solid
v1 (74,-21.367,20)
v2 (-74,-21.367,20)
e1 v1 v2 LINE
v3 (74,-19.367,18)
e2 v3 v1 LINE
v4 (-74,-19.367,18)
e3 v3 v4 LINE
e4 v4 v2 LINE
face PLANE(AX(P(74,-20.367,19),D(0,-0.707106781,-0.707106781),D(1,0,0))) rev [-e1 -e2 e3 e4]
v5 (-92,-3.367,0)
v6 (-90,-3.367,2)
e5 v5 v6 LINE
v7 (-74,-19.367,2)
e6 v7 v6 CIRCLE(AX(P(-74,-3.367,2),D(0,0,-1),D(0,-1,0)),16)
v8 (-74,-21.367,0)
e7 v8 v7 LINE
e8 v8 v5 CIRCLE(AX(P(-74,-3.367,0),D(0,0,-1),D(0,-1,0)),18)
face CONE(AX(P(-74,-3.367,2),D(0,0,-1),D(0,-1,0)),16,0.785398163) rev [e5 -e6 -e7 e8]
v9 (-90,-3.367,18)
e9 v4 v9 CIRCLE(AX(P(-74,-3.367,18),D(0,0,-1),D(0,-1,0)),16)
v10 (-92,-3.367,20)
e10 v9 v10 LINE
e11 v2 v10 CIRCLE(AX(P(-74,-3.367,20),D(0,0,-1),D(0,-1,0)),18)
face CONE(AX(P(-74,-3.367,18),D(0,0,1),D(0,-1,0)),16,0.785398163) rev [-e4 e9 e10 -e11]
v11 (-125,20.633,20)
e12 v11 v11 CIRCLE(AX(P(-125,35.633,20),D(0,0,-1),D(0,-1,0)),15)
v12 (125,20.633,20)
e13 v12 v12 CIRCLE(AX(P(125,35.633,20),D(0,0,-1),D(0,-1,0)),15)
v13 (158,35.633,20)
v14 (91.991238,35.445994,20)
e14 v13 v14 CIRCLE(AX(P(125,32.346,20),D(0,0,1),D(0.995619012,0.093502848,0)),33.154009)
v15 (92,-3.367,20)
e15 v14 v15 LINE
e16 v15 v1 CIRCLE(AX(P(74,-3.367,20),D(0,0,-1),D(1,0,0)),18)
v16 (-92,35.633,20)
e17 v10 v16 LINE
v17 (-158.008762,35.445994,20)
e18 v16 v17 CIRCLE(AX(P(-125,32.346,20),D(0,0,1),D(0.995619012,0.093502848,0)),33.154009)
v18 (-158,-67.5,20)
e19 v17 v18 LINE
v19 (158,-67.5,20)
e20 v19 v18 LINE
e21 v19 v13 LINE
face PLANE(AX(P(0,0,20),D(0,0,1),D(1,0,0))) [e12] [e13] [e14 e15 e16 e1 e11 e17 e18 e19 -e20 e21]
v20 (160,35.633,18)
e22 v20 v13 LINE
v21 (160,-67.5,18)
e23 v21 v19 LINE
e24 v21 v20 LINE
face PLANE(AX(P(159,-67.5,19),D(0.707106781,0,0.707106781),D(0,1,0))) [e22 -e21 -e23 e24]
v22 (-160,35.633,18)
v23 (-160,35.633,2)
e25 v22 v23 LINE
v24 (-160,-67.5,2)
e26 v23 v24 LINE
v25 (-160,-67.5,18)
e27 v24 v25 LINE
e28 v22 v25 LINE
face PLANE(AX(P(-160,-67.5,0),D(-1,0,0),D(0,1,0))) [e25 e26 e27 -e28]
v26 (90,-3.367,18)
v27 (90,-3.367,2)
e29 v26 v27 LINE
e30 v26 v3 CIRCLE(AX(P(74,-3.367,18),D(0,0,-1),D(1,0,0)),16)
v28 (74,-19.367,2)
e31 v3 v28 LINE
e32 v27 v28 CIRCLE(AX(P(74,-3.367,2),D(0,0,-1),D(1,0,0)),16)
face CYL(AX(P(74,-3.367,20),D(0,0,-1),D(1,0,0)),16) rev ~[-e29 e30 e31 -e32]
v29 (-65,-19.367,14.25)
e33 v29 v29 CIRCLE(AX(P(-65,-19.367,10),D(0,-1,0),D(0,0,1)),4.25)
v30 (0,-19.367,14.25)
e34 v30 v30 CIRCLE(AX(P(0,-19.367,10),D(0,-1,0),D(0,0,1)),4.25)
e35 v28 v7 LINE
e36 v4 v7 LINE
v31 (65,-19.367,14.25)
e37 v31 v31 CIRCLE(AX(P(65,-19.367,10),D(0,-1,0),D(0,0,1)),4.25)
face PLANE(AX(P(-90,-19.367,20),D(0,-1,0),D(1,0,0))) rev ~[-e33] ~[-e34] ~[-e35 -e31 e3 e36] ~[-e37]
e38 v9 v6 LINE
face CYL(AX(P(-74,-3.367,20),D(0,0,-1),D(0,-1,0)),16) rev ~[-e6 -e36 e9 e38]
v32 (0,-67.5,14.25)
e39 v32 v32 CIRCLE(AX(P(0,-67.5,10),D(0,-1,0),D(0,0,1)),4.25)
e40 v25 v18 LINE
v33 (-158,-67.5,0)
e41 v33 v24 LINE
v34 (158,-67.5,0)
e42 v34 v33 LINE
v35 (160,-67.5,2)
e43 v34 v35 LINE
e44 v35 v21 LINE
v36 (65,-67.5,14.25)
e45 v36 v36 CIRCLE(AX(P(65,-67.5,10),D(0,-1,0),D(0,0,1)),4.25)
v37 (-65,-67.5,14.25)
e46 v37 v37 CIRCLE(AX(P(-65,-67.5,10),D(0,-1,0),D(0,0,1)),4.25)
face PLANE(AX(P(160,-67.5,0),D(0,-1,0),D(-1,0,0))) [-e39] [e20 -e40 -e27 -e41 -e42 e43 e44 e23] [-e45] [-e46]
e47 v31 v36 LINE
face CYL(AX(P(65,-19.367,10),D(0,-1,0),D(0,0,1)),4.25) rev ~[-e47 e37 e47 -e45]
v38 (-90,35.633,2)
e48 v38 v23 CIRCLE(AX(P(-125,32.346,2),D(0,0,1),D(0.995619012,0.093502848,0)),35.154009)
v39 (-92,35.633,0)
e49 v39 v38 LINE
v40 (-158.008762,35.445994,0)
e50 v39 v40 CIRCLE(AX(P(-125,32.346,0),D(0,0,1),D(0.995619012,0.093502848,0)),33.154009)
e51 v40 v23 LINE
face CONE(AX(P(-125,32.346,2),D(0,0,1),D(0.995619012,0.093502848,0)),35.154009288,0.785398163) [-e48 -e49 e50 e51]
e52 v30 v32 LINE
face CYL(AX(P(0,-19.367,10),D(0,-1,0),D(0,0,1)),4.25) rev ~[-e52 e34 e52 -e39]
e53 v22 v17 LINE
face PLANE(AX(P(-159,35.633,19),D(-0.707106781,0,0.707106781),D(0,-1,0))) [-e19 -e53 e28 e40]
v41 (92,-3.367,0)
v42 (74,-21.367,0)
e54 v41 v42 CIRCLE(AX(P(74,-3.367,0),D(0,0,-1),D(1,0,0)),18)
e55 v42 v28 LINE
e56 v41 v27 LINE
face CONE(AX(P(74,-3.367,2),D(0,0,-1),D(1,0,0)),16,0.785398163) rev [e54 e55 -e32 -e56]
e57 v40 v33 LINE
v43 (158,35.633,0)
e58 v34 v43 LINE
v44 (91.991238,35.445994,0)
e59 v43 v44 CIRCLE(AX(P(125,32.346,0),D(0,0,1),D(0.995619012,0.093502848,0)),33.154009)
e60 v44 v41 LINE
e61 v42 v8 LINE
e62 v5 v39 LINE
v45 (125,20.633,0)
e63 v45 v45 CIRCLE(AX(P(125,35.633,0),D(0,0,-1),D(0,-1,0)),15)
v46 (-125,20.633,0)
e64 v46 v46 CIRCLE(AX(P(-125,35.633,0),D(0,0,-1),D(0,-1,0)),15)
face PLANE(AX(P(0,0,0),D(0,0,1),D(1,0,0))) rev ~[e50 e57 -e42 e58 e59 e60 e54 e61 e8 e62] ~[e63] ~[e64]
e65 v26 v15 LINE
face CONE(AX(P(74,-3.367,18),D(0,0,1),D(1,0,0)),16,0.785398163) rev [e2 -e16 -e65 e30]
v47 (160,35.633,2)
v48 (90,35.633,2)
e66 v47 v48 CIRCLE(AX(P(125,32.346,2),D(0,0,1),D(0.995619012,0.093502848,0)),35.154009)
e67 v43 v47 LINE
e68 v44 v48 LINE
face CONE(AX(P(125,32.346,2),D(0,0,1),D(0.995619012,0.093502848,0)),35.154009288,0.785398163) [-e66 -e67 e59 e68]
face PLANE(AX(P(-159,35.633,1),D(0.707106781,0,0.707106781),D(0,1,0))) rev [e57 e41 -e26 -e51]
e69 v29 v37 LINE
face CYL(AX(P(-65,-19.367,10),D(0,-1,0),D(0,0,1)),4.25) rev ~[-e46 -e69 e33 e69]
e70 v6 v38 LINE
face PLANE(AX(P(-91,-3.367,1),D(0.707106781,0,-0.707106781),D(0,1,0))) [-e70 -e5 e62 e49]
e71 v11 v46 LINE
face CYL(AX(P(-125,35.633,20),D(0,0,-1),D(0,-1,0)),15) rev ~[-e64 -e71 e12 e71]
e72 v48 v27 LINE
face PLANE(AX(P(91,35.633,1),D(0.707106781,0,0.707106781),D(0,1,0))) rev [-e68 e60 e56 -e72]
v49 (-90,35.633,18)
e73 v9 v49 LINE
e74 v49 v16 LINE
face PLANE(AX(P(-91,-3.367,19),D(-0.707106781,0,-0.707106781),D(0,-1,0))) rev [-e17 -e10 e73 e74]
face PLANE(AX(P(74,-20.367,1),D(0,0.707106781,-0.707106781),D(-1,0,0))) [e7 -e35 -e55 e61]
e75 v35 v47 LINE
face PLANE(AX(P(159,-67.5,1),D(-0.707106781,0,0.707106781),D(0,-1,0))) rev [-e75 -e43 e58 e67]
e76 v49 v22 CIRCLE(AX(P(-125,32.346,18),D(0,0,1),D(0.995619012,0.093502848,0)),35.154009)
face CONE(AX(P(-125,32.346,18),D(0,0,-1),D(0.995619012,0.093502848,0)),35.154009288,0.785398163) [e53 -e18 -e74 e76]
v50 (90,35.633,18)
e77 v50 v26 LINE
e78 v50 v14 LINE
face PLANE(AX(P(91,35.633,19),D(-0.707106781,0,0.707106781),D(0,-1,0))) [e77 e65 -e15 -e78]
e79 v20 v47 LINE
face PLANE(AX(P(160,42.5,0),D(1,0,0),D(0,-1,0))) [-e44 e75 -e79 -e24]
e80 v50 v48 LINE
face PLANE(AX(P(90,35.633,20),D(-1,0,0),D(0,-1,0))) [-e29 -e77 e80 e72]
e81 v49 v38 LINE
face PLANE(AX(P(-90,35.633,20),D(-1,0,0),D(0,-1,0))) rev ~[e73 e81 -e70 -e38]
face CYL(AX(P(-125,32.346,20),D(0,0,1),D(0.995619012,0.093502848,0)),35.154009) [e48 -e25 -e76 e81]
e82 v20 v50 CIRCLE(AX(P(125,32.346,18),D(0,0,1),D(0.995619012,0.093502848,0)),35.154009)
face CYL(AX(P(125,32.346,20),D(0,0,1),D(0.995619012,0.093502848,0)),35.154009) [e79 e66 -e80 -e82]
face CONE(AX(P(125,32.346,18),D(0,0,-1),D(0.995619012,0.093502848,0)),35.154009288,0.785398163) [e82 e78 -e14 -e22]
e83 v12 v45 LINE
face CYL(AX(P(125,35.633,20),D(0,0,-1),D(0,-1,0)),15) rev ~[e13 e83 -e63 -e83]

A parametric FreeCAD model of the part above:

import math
import FreeCAD as App
import Part
import Sketcher
from FreeCAD import Vector
Q = App.Units.Quantity


def edges_at(feature, points):
    """Names of the edges that pass closest to the given points."""
    edges = feature.Shape.Edges
    near = lambda p: min(range(len(edges)), key=lambda i: edges[i].distToShape(Part.Vertex(*p))[0])
    return sorted({f"Edge{near(p) + 1}" for p in points})


def add_polygon(sketch, points):
    """Adds a closed chain of lines whose ends are joined by coincident constraints."""
    first, n = sketch.GeometryCount, len(points)
    for a, b in zip(points, points[1:] + points[:1]):
        sketch.addGeometry(Part.LineSegment(App.Vector(*a, 0), App.Vector(*b, 0)), False)
    for i in range(n):
        sketch.addConstraint(Sketcher.Constraint("Coincident", first + i, 2, first + (i + 1) % n, 1))

doc = App.newDocument("Part")
body = doc.addObject("PartDesign::Body", "Body")

# Sketch on XY plane
sketch1 = body.newObject("Sketcher::SketchObject", "Sketch")
sketch1.AttachmentSupport = (doc.getObject("XY_Plane"), [""])
sketch1.MapMode = "FlatFace"
add_polygon(sketch1, [(-160, -67.5), (160, -67.5), (160, 67.5), (-160, 67.5)])  # lines 0-3
sketch1.addConstraint([
    Sketcher.Constraint("Horizontal", 0),
    Sketcher.Constraint("Vertical", 1),
    Sketcher.Constraint("Horizontal", 2),
    Sketcher.Constraint("Vertical", 3),
    Sketcher.Constraint("Symmetric", 0, 2, 2, 2, -1, 1),
    Sketcher.Constraint("DistanceX", 0, 1, 0, 2, Q("320 mm")),
    Sketcher.Constraint("DistanceY", 1, 1, 1, 2, Q("135 mm")),
])
pad1 = body.newObject("PartDesign::Pad", "Pad")
pad1.Profile = sketch1
pad1.Length = 20

# Sketch on XY plane
sketch2 = body.newObject("Sketcher::SketchObject", "Sketch001")
sketch2.AttachmentSupport = (doc.getObject("XY_Plane"), [""])
sketch2.MapMode = "FlatFace"
sketch2.AttachmentOffset = App.Placement(Vector(0, 0, 20), App.Rotation())
sketch2.addGeometry([
    Part.Circle(Vector(-125, 35.633, 0), Vector(0, 0, 1), 15),
    Part.Circle(Vector(125, 35.633, 0), Vector(0, 0, 1), 15),
], False)
sketch2.addConstraint([
    Sketcher.Constraint("Equal", 0, 1),
    Sketcher.Constraint("Symmetric", 0, 3, 1, 3, -2),
    Sketcher.Constraint("Diameter", 0, Q("30 mm")),
    Sketcher.Constraint("DistanceX", 0, 3, -1, 1, Q("125 mm")),
    Sketcher.Constraint("DistanceY", -1, 1, 0, 3, Q("35.633 mm")),
])
doc.recompute()
hole = body.newObject("PartDesign::Hole", "Hole")
hole.Profile = sketch2
hole.ThreadType = "None"
hole.Diameter = 30
hole.DepthType = "Dimension"
hole.Depth = 50
hole.DrillPoint = "Angled"
hole.DrillPointAngle = 118

# Sketch on XY plane
sketch3 = body.newObject("Sketcher::SketchObject", "Sketch002")
sketch3.AttachmentSupport = (doc.getObject("XY_Plane"), [""])
sketch3.MapMode = "FlatFace"
sketch3.AttachmentOffset = App.Placement(Vector(0, 0, 20), App.Rotation())
sketch3.addGeometry([
    Part.ArcOfCircle(Part.Circle(Vector(-125, 32.346, 0), Vector(0, 0, 1), 35.154009), math.radians(5.365156), math.radians(90)),  # 0
    Part.LineSegment(Vector(-90, 35.633, 0), Vector(-90, -19.367, 0)),  # 1
    Part.LineSegment(Vector(-90, -19.367, 0), Vector(90, -19.367, 0)),  # 2
    Part.LineSegment(Vector(90, -19.367, 0), Vector(90, 35.633, 0)),  # 3
    Part.ArcOfCircle(Part.Circle(Vector(125, 32.346, 0), Vector(0, 0, 1), 35.154009), math.radians(90), math.radians(174.634844)),  # 4
    Part.LineSegment(Vector(125, 67.5, 0), Vector(-125, 67.5, 0)),  # 5
    Part.ArcOfCircle(Part.Circle(Vector(-125, 32.346, 0), Vector(0, 0, 1), 35.154009), math.radians(90), math.radians(174.634844)),  # 6
    Part.LineSegment(Vector(-125, 67.5, 0), Vector(-160, 67.5, 0)),  # 7
    Part.LineSegment(Vector(-160, 67.5, 0), Vector(-160, 35.633, 0)),  # 8
    Part.LineSegment(Vector(160, 67.5, 0), Vector(125, 67.5, 0)),  # 9
    Part.ArcOfCircle(Part.Circle(Vector(125, 32.346, 0), Vector(0, 0, 1), 35.154009), math.radians(5.365156), math.radians(90)),  # 10
    Part.LineSegment(Vector(160, 35.633, 0), Vector(160, 67.5, 0)),  # 11
], False)
sketch3.addConstraint([
    Sketcher.Constraint("Coincident", 0, 1, 1, 1),
    Sketcher.Constraint("Coincident", 1, 2, 2, 1),
    Sketcher.Constraint("Coincident", 2, 2, 3, 1),
    Sketcher.Constraint("Coincident", 3, 2, 4, 2),
    Sketcher.Constraint("Tangent", 4, 1, 5, 1),
    Sketcher.Constraint("Tangent", 5, 2, 0, 2),
    Sketcher.Constraint("Tangent", 6, 1, 7, 1),
    Sketcher.Constraint("Coincident", 7, 2, 8, 1),
    Sketcher.Constraint("Coincident", 8, 2, 6, 2),
    Sketcher.Constraint("Tangent", 9, 2, 10, 2),
    Sketcher.Constraint("Coincident", 10, 1, 11, 1),
    Sketcher.Constraint("Coincident", 11, 2, 9, 1),
    Sketcher.Constraint("Vertical", 1),
    Sketcher.Constraint("Horizontal", 2),
    Sketcher.Constraint("Vertical", 3),
    Sketcher.Constraint("Horizontal", 5),
    Sketcher.Constraint("Horizontal", 7),
    Sketcher.Constraint("Vertical", 8),
    Sketcher.Constraint("Horizontal", 9),
    Sketcher.Constraint("Vertical", 11),
    Sketcher.Constraint("Coincident", 6, 3, 0, 3),
    Sketcher.Constraint("Coincident", 10, 3, 4, 3),
    Sketcher.Constraint("Equal", 0, 4),
    Sketcher.Constraint("Equal", 4, 6),
    Sketcher.Constraint("Equal", 6, 10),
    Sketcher.Constraint("Symmetric", 0, 1, 3, 2, -2),
    Sketcher.Constraint("Horizontal", 3, 2, 8, 2),
    Sketcher.Constraint("Horizontal", 8, 2, 10, 1),
    Sketcher.Constraint("DistanceY", 1, 2, 1, 1, Q("55 mm")),
    Sketcher.Constraint("DistanceX", 7, 2, 0, 1, Q("70 mm")),
    Sketcher.Constraint("DistanceX", 2, 1, 2, 2, Q("180 mm")),
    Sketcher.Constraint("Radius", 0, Q("35.154 mm")),
    Sketcher.Constraint("DistanceY", -1, 1, 4, 1, Q("67.5 mm")),
])
pocket1 = body.newObject("PartDesign::Pocket", "Pocket")
pocket1.Profile = sketch3
pocket1.Length = 20

# Sketch on XZ plane
sketch4 = body.newObject("Sketcher::SketchObject", "Sketch003")
sketch4.AttachmentSupport = (doc.getObject("XZ_Plane"), [""])
sketch4.MapMode = "FlatFace"
sketch4.AttachmentOffset = App.Placement(Vector(0, 0, 19.367), App.Rotation())
sketch4.addGeometry([
    Part.Circle(Vector(-65, 10, 0), Vector(0, 0, 1), 4.25),
    Part.Circle(Vector(0, 10, 0), Vector(0, 0, 1), 4.25),
    Part.Circle(Vector(65, 10, 0), Vector(0, 0, 1), 4.25),
], False)
sketch4.addConstraint([
    Sketcher.Constraint("Equal", 0, 1),
    Sketcher.Constraint("Equal", 1, 2),
    Sketcher.Constraint("Symmetric", 0, 3, 2, 3, -2),
    Sketcher.Constraint("PointOnObject", 1, 3, -2),
    Sketcher.Constraint("Horizontal", 0, 3, 1, 3),
    Sketcher.Constraint("Diameter", 0, Q("8.5 mm")),
    Sketcher.Constraint("DistanceX", 0, 3, -1, 1, Q("65 mm")),
    Sketcher.Constraint("DistanceY", -1, 1, 0, 3, Q("10 mm")),
])
doc.recompute()
hole2 = body.newObject("PartDesign::Hole", "Hole001")
hole2.Profile = sketch4
hole2.ThreadType = "None"
hole2.Diameter = 8.5
hole2.DepthType = "ThroughAll"
hole2.Reversed = True
doc.recompute()

fillet = body.newObject("PartDesign::Fillet", "Fillet")
fillet.Base = (hole2, edges_at(hole2, [(-90, -19.367, 10), (90, -19.367, 10)]))
fillet.Radius = 16
doc.recompute()

chamfer = body.newObject("PartDesign::Chamfer", "Chamfer")
chamfer.Base = (fillet, edges_at(fillet, [
    (-125, 67.5, 20),
    (-90, 16.133, 20),
    (90, 16.133, 20),
    (85.314, -14.681, 20),
    (0, -19.367, 20),
    (-85.314, -14.681, 20),
    (125, 67.5, 20),
    (160, -15.934, 20),
    (-160, -15.934, 20),
    (160, -15.934, 0),
    (125, 67.5, 0),
    (90, 16.133, 0),
    (-90, 16.133, 0),
    (-85.314, -14.681, 0),
    (0, -19.367, 0),
    (85.314, -14.681, 0),
    (-125, 67.5, 0),
    (-160, -15.934, 0),
]))
chamfer.Size = 2

doc.recompute()
